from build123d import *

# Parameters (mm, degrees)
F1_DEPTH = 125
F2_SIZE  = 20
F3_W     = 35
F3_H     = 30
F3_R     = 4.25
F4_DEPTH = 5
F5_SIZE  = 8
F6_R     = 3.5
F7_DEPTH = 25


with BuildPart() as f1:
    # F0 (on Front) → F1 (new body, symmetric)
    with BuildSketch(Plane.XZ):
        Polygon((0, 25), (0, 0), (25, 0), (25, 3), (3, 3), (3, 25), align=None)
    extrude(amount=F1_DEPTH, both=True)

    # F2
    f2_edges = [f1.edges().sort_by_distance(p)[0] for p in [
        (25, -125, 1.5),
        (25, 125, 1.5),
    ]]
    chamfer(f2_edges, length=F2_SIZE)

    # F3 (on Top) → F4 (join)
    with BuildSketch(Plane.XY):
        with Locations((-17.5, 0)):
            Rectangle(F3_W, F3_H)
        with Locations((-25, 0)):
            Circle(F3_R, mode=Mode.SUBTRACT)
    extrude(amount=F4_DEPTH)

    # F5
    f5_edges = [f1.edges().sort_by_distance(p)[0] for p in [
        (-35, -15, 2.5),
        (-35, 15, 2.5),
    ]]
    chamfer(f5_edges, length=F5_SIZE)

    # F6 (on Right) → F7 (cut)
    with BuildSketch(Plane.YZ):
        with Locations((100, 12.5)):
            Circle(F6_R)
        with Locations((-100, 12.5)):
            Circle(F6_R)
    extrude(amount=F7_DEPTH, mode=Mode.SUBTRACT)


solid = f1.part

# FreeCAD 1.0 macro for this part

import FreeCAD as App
import Part
import Sketcher
from FreeCAD import Vector
Q = App.Units.Quantity


def edges_at(feature, points):
    """Names of the edges that pass closest to the given points."""
    edges = feature.Shape.Edges
    near = lambda p: min(range(len(edges)), key=lambda i: edges[i].distToShape(Part.Vertex(*p))[0])
    return sorted({f"Edge{near(p) + 1}" for p in points})


def add_polygon(sketch, points):
    """Adds a closed chain of lines whose ends are joined by coincident constraints."""
    first, n = sketch.GeometryCount, len(points)
    for a, b in zip(points, points[1:] + points[:1]):
        sketch.addGeometry(Part.LineSegment(App.Vector(*a, 0), App.Vector(*b, 0)), False)
    for i in range(n):
        sketch.addConstraint(Sketcher.Constraint("Coincident", first + i, 2, first + (i + 1) % n, 1))

doc = App.newDocument("Part")
body = doc.addObject("PartDesign::Body", "Body")

sketch1 = body.newObject("Sketcher::SketchObject", "Sketch")
sketch1.AttachmentSupport = (doc.getObject("XZ_Plane"), [""])
sketch1.MapMode = "FlatFace"
add_polygon(sketch1, [(0, 25), (0, 0), (25, 0), (25, 3), (3, 3), (3, 25)])
sketch1.addConstraint(Sketcher.Constraint("Vertical", 0))
sketch1.addConstraint(Sketcher.Constraint("Horizontal", 1))
sketch1.addConstraint(Sketcher.Constraint("Vertical", 2))
sketch1.addConstraint(Sketcher.Constraint("Horizontal", 3))
sketch1.addConstraint(Sketcher.Constraint("Vertical", 4))
sketch1.addConstraint(Sketcher.Constraint("Horizontal", 5))
sketch1.addConstraint(Sketcher.Constraint("Coincident", 0, 2, -1, 1))
sketch1.addConstraint(Sketcher.Constraint("Equal", 1, 0))
sketch1.addConstraint(Sketcher.Constraint("Equal", 5, 2))
sketch1.addConstraint(Sketcher.Constraint("DistanceX", 1, 1, 1, 2, Q("25 mm")))
sketch1.addConstraint(Sketcher.Constraint("DistanceX", 3, 2, 3, 1, Q("22 mm")))
pad1 = body.newObject("PartDesign::Pad", "Pad")
pad1.Profile = sketch1
pad1.Length = 250
pad1.Midplane = True
doc.recompute()

chamfer = body.newObject("PartDesign::Chamfer", "Chamfer")
chamfer.Base = (pad1, edges_at(pad1, [(25, -125, 1.5), (25, 125, 1.5)]))
chamfer.Size = 20

sketch2 = body.newObject("Sketcher::SketchObject", "Sketch001")
sketch2.AttachmentSupport = (doc.getObject("XY_Plane"), [""])
sketch2.MapMode = "FlatFace"
add_polygon(sketch2, [(-35, 15), (-35, -15), (0, -15), (0, 15)])
sketch2.addGeometry(Part.Circle(Vector(-25, 0, 0), Vector(0, 0, 1), 4.2), False)
sketch2.addConstraint(Sketcher.Constraint("Vertical", 0))
sketch2.addConstraint(Sketcher.Constraint("Horizontal", 1))
sketch2.addConstraint(Sketcher.Constraint("Vertical", 2))
sketch2.addConstraint(Sketcher.Constraint("Horizontal", 3))
sketch2.addConstraint(Sketcher.Constraint("Symmetric", 1, 2, 2, 2, -1, 1))
sketch2.addConstraint(Sketcher.Constraint("PointOnObject", 4, 3, -1))
sketch2.addConstraint(Sketcher.Constraint("Diameter", 4, Q("8.5 mm")))
sketch2.addConstraint(Sketcher.Constraint("DistanceX", 1, 1, 1, 2, Q("35 mm")))
sketch2.addConstraint(Sketcher.Constraint("DistanceY", 0, 2, 0, 1, Q("30 mm")))
sketch2.addConstraint(Sketcher.Constraint("DistanceX", 4, 3, -1, 1, Q("25 mm")))
pad2 = body.newObject("PartDesign::Pad", "Pad001")
pad2.Profile = sketch2
pad2.Length = 5
doc.recompute()

chamfer2 = body.newObject("PartDesign::Chamfer", "Chamfer001")
chamfer2.Base = (pad2, edges_at(pad2, [(-35, -15, 2.5), (-35, 15, 2.5)]))
chamfer2.Size = 8

sketch3 = body.newObject("Sketcher::SketchObject", "Sketch002")
sketch3.AttachmentSupport = (doc.getObject("YZ_Plane"), [""])
sketch3.MapMode = "FlatFace"
sketch3.addGeometry(Part.Circle(Vector(100, 12.5, 0), Vector(0, 0, 1), 3.5), False)
sketch3.addGeometry(Part.Circle(Vector(-100, 12.5, 0), Vector(0, 0, 1), 3.5), False)
sketch3.addConstraint(Sketcher.Constraint("Equal", 0, 1))
sketch3.addConstraint(Sketcher.Constraint("Symmetric", 0, 3, 1, 3, -2))
sketch3.addConstraint(Sketcher.Constraint("Diameter", 0, Q("7 mm")))
sketch3.addConstraint(Sketcher.Constraint("DistanceX", -1, 1, 0, 3, Q("100 mm")))
sketch3.addConstraint(Sketcher.Constraint("DistanceY", -1, 1, 0, 3, Q("12.5 mm")))
pocket1 = body.newObject("PartDesign::Pocket", "Pocket")
pocket1.Profile = sketch3
pocket1.Length = 25
pocket1.Reversed = True

doc.recompute()
